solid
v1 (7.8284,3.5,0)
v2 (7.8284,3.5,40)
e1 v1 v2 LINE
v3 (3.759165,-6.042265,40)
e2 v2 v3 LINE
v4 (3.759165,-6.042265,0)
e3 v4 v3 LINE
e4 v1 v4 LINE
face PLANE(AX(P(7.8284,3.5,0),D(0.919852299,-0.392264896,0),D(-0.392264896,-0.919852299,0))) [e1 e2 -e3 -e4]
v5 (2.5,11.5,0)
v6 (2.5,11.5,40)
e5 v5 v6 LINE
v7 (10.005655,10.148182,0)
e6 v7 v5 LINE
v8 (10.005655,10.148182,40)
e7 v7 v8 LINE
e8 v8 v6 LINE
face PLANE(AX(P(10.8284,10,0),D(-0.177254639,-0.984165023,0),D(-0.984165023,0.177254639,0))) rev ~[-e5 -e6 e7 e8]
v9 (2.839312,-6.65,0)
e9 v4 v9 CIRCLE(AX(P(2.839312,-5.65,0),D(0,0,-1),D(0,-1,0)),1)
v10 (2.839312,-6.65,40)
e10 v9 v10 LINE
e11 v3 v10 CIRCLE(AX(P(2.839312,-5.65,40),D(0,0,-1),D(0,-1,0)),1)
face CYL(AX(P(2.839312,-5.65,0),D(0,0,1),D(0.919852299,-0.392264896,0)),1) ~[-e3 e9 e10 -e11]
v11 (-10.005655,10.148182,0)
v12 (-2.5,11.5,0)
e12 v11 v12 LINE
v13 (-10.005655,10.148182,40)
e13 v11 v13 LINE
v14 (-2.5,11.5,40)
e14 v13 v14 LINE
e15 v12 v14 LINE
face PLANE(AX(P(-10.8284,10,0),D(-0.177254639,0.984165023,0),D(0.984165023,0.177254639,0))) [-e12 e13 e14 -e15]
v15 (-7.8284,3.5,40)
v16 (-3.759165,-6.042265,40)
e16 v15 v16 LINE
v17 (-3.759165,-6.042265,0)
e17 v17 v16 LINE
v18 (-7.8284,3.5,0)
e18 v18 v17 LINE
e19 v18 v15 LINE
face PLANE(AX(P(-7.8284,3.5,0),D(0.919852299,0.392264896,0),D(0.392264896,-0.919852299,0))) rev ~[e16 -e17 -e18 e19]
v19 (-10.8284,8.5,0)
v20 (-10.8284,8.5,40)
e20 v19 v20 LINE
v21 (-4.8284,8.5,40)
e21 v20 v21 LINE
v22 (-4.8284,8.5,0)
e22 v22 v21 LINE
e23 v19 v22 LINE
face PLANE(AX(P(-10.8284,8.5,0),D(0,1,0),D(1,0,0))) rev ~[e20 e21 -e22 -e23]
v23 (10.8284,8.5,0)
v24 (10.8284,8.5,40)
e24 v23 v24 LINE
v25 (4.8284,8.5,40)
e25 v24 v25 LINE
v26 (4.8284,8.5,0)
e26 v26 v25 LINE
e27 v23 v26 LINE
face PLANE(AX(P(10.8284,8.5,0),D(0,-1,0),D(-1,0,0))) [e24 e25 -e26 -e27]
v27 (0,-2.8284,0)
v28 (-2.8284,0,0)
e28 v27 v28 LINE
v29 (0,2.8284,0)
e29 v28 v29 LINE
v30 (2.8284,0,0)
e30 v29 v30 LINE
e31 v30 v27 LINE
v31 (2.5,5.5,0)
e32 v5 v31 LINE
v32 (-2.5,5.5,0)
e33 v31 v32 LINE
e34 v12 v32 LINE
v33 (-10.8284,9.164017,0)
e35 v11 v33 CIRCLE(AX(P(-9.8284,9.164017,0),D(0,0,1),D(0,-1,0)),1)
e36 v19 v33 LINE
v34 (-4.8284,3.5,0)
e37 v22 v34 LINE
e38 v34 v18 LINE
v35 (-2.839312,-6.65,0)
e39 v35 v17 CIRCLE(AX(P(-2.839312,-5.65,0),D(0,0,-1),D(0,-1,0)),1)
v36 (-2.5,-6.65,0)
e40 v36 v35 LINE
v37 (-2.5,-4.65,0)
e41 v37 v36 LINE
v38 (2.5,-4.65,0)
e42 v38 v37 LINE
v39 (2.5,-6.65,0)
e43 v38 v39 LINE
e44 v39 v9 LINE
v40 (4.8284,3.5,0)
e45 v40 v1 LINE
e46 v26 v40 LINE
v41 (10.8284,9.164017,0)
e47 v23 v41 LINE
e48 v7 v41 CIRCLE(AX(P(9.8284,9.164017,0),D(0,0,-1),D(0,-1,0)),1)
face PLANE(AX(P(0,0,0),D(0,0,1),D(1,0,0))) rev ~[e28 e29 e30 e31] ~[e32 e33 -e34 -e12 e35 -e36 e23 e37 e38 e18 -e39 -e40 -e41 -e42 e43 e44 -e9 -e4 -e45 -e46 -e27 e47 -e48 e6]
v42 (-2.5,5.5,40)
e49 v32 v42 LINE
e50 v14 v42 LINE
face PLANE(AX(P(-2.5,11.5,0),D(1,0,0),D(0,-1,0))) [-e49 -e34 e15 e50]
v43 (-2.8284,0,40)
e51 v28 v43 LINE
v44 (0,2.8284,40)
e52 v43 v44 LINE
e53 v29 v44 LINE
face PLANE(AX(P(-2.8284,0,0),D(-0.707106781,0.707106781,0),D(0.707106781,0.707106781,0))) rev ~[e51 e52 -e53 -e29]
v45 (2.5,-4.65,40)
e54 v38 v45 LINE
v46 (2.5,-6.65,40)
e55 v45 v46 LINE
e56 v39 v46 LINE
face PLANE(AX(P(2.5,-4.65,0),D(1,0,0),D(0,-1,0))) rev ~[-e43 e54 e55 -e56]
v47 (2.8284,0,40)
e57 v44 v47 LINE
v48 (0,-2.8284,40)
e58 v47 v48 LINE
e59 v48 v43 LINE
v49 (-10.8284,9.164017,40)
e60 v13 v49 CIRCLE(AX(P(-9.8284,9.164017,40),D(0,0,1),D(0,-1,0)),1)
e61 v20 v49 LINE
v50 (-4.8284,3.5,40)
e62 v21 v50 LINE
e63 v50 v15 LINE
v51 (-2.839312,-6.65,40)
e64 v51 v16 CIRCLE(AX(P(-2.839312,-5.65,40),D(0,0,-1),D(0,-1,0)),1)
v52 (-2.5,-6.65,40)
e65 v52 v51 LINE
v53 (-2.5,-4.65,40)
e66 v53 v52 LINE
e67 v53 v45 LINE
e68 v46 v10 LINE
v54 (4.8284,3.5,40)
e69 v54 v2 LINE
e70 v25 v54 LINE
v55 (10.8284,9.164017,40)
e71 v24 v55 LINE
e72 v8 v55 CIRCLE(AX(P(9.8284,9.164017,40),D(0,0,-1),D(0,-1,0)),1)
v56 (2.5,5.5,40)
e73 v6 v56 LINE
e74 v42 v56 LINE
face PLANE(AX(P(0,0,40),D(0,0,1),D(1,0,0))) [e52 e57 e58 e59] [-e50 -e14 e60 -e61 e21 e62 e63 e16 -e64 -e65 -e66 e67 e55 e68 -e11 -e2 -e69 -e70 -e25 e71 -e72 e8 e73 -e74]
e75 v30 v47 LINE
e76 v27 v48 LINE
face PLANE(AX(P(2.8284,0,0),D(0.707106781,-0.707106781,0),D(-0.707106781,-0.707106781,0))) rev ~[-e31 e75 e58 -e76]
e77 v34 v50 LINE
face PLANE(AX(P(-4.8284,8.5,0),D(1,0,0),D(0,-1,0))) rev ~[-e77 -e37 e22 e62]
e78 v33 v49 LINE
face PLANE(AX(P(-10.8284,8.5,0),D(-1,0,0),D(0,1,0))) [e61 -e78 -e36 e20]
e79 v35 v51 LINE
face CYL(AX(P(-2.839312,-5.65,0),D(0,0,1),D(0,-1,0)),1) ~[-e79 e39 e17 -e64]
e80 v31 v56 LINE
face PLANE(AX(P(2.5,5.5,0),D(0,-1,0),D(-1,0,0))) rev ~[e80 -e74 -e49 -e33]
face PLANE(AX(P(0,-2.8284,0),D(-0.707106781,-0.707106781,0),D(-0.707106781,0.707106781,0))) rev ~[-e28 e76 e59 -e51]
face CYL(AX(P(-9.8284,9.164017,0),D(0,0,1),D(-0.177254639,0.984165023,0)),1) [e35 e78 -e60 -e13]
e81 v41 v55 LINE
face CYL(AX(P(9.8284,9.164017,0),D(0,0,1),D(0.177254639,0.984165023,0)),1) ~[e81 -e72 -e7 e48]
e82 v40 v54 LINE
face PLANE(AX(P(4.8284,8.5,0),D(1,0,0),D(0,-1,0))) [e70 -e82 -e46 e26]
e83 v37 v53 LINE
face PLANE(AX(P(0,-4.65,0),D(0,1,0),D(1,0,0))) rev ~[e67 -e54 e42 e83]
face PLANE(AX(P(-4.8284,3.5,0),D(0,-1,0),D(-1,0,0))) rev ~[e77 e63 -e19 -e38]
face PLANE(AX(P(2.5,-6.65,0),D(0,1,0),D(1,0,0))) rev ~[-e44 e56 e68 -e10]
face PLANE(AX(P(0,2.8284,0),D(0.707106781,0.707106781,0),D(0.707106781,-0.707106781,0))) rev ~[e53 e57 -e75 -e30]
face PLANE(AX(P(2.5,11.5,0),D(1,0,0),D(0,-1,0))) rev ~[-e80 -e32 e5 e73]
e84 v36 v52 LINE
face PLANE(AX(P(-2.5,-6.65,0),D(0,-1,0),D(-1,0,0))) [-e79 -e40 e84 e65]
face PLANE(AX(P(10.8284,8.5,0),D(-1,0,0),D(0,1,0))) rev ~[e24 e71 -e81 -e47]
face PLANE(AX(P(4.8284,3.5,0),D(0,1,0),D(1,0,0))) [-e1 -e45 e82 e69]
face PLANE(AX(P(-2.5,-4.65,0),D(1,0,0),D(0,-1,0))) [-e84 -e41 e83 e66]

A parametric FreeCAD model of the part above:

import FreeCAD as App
import Part
import Sketcher

V = App.Vector
Q = App.Units.Quantity


def edges_at(feature, points):
    """Names of the edges that pass closest to the given points."""
    edges = feature.Shape.Edges
    near = lambda p: min(range(len(edges)), key=lambda i: edges[i].distToShape(Part.Vertex(*p))[0])
    return sorted({f"Edge{near(p) + 1}" for p in points})

doc = App.newDocument("Part")
body = doc.addObject("PartDesign::Body", "Body")

sketch1 = body.newObject("Sketcher::SketchObject", "Sketch")
sketch1.AttachmentSupport = (doc.getObject("XY_Plane"), [""])
sketch1.MapMode = "FlatFace"
sketch1.addGeometry(Part.LineSegment(V(2.5, 5.5, 0), V(-2.5, 5.5, 0)), False)
sketch1.addGeometry(Part.LineSegment(V(-2.5, 5.5, 0), V(-2.5, 11.5, 0)), False)
sketch1.addGeometry(Part.LineSegment(V(-2.5, 11.5, 0), V(-10.8284, 10, 0)), False)
sketch1.addGeometry(Part.LineSegment(V(-10.8284, 10, 0), V(-10.8284, 8.5, 0)), False)
sketch1.addGeometry(Part.LineSegment(V(-10.8284, 8.5, 0), V(-4.8284, 8.5, 0)), False)
sketch1.addGeometry(Part.LineSegment(V(-4.8284, 8.5, 0), V(-4.8284, 3.5, 0)), False)
sketch1.addGeometry(Part.LineSegment(V(-4.8284, 3.5, 0), V(-7.8284, 3.5, 0)), False)
sketch1.addGeometry(Part.LineSegment(V(-7.8284, 3.5, 0), V(-3.5, -6.65, 0)), False)
sketch1.addGeometry(Part.LineSegment(V(-3.5, -6.65, 0), V(-2.5, -6.65, 0)), False)
sketch1.addGeometry(Part.LineSegment(V(-2.5, -6.65, 0), V(-2.5, -4.65, 0)), False)
sketch1.addGeometry(Part.LineSegment(V(-2.5, -4.65, 0), V(2.5, -4.65, 0)), False)
sketch1.addGeometry(Part.LineSegment(V(2.5, -4.65, 0), V(2.5, -6.65, 0)), False)
sketch1.addGeometry(Part.LineSegment(V(2.5, -6.65, 0), V(3.5, -6.65, 0)), False)
sketch1.addGeometry(Part.LineSegment(V(3.5, -6.65, 0), V(7.8284, 3.5, 0)), False)
sketch1.addGeometry(Part.LineSegment(V(7.8284, 3.5, 0), V(4.8284, 3.5, 0)), False)
sketch1.addGeometry(Part.LineSegment(V(4.8284, 3.5, 0), V(4.8284, 8.5, 0)), False)
sketch1.addGeometry(Part.LineSegment(V(4.8284, 8.5, 0), V(10.8284, 8.5, 0)), False)
sketch1.addGeometry(Part.LineSegment(V(10.8284, 8.5, 0), V(10.8284, 10, 0)), False)
sketch1.addGeometry(Part.LineSegment(V(10.8284, 10, 0), V(2.5, 11.5, 0)), False)
sketch1.addGeometry(Part.LineSegment(V(2.5, 11.5, 0), V(2.5, 5.5, 0)), False)
sketch1.addGeometry(Part.LineSegment(V(2.8284, 0, 0), V(0, -2.8284, 0)), False)
sketch1.addGeometry(Part.LineSegment(V(0, -2.8284, 0), V(-2.8284, 0, 0)), False)
sketch1.addGeometry(Part.LineSegment(V(-2.8284, 0, 0), V(0, 2.8284, 0)), False)
sketch1.addGeometry(Part.LineSegment(V(0, 2.8284, 0), V(2.8284, 0, 0)), False)
sketch1.addConstraint(Sketcher.Constraint("Coincident", 0, 2, 1, 1))
sketch1.addConstraint(Sketcher.Constraint("Coincident", 1, 2, 2, 1))
sketch1.addConstraint(Sketcher.Constraint("Coincident", 2, 2, 3, 1))
sketch1.addConstraint(Sketcher.Constraint("Coincident", 3, 2, 4, 1))
sketch1.addConstraint(Sketcher.Constraint("Coincident", 4, 2, 5, 1))
sketch1.addConstraint(Sketcher.Constraint("Coincident", 5, 2, 6, 1))
sketch1.addConstraint(Sketcher.Constraint("Coincident", 6, 2, 7, 1))
sketch1.addConstraint(Sketcher.Constraint("Coincident", 7, 2, 8, 1))
sketch1.addConstraint(Sketcher.Constraint("Coincident", 8, 2, 9, 1))
sketch1.addConstraint(Sketcher.Constraint("Coincident", 9, 2, 10, 1))
sketch1.addConstraint(Sketcher.Constraint("Coincident", 10, 2, 11, 1))
sketch1.addConstraint(Sketcher.Constraint("Coincident", 11, 2, 12, 1))
sketch1.addConstraint(Sketcher.Constraint("Coincident", 12, 2, 13, 1))
sketch1.addConstraint(Sketcher.Constraint("Coincident", 13, 2, 14, 1))
sketch1.addConstraint(Sketcher.Constraint("Coincident", 14, 2, 15, 1))
sketch1.addConstraint(Sketcher.Constraint("Coincident", 15, 2, 16, 1))
sketch1.addConstraint(Sketcher.Constraint("Coincident", 16, 2, 17, 1))
sketch1.addConstraint(Sketcher.Constraint("Coincident", 17, 2, 18, 1))
sketch1.addConstraint(Sketcher.Constraint("Coincident", 18, 2, 19, 1))
sketch1.addConstraint(Sketcher.Constraint("Coincident", 19, 2, 0, 1))
sketch1.addConstraint(Sketcher.Constraint("Coincident", 20, 2, 21, 1))
sketch1.addConstraint(Sketcher.Constraint("Coincident", 21, 2, 22, 1))
sketch1.addConstraint(Sketcher.Constraint("Coincident", 22, 2, 23, 1))
sketch1.addConstraint(Sketcher.Constraint("Coincident", 23, 2, 20, 1))
sketch1.addConstraint(Sketcher.Constraint("Horizontal", 0))
sketch1.addConstraint(Sketcher.Constraint("Vertical", 1))
sketch1.addConstraint(Sketcher.Constraint("Vertical", 3))
sketch1.addConstraint(Sketcher.Constraint("Horizontal", 4))
sketch1.addConstraint(Sketcher.Constraint("Vertical", 5))
sketch1.addConstraint(Sketcher.Constraint("Horizontal", 6))
sketch1.addConstraint(Sketcher.Constraint("Horizontal", 8))
sketch1.addConstraint(Sketcher.Constraint("Vertical", 9))
sketch1.addConstraint(Sketcher.Constraint("Horizontal", 10))
sketch1.addConstraint(Sketcher.Constraint("Vertical", 11))
sketch1.addConstraint(Sketcher.Constraint("Horizontal", 12))
sketch1.addConstraint(Sketcher.Constraint("Horizontal", 14))
sketch1.addConstraint(Sketcher.Constraint("Vertical", 15))
sketch1.addConstraint(Sketcher.Constraint("Horizontal", 16))
sketch1.addConstraint(Sketcher.Constraint("Vertical", 17))
sketch1.addConstraint(Sketcher.Constraint("Vertical", 19))
sketch1.addConstraint(Sketcher.Constraint("Symmetric", 20, 2, 22, 2, -1, 1))
sketch1.addConstraint(Sketcher.Constraint("Symmetric", 21, 2, 23, 2, -1, 1))
sketch1.addConstraint(Sketcher.Constraint("Symmetric", 8, 2, 11, 2, -2))
sketch1.addConstraint(Sketcher.Constraint("Symmetric", 6, 2, 13, 2, -2))
sketch1.addConstraint(Sketcher.Constraint("Symmetric", 4, 2, 15, 2, -2))
sketch1.addConstraint(Sketcher.Constraint("Symmetric", 2, 2, 17, 2, -2))
sketch1.addConstraint(Sketcher.Constraint("Symmetric", 1, 2, 18, 2, -2))
sketch1.addConstraint(Sketcher.Constraint("PointOnObject", 20, 2, -2))
sketch1.addConstraint(Sketcher.Constraint("PointOnObject", 21, 2, -1))
sketch1.addConstraint(Sketcher.Constraint("Perpendicular", 20, 21))
sketch1.addConstraint(Sketcher.Constraint("Vertical", 1, 2, 8, 2))
sketch1.addConstraint(Sketcher.Constraint("Equal", 8, 12))
sketch1.addConstraint(Sketcher.Constraint("Equal", 16, 1))
sketch1.addConstraint(Sketcher.Constraint("Equal", 10, 5))
sketch1.addConstraint(Sketcher.Constraint("DistanceX", 0, 2, 0, 1, Q("5 mm")))
sketch1.addConstraint(Sketcher.Constraint("DistanceX", 4, 1, 4, 2, Q("6 mm")))
sketch1.addConstraint(Sketcher.Constraint("DistanceX", 6, 2, 6, 1, Q("3 mm")))
sketch1.addConstraint(Sketcher.Constraint("DistanceX", 8, 1, 8, 2, Q("1 mm")))
sketch1.addConstraint(Sketcher.Constraint("DistanceY", 9, 1, 9, 2, Q("2 mm")))
sketch1.addConstraint(Sketcher.Constraint("Distance", 20, Q("4 mm")))
sketch1.addConstraint(Sketcher.Constraint("DistanceY", 3, 2, 3, 1, Q("1.5 mm")))
sketch1.addConstraint(Sketcher.Constraint("DistanceY", 0, 2, 3, 2, Q("3 mm")))
sketch1.addConstraint(Sketcher.Constraint("DistanceX", 5, 2, 21, 2, Q("2 mm")))
sketch1.addConstraint(Sketcher.Constraint("DistanceY", -1, 1, 5, 2, Q("3.5 mm")))
sketch1.addConstraint(Sketcher.Constraint("DistanceY", 7, 2, -1, 1, Q("6.65 mm")))
pad1 = body.newObject("PartDesign::Pad", "Pad")
pad1.Profile = sketch1
pad1.Length = 40
doc.recompute()

fillet = body.newObject("PartDesign::Fillet", "Fillet")
fillet.Base = (pad1, edges_at(pad1, [
    (-3.5, -6.65, 20),
    (3.5, -6.65, 20),
    (10.828, 10, 20),
    (-10.828, 10, 20),
]))
fillet.Radius = 1

doc.recompute()
